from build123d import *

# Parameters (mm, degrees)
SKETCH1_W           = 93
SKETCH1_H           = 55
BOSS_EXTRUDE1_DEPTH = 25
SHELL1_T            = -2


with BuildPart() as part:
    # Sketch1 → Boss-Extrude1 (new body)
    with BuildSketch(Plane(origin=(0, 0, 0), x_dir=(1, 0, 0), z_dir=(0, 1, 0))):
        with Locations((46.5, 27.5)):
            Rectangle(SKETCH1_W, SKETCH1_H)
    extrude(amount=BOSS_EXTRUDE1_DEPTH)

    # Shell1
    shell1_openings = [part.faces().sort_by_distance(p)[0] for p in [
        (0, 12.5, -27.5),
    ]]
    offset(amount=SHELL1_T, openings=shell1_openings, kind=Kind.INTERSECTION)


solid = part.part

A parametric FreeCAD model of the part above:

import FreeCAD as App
import Part
import Sketcher

V = App.Vector


def faces_at(feature, points):
    """Names of the faces that lie closest to the given points."""
    faces = feature.Shape.Faces
    near = lambda p: min(range(len(faces)), key=lambda i: faces[i].distToShape(Part.Vertex(*p))[0])
    return sorted({f"Face{near(p) + 1}" for p in points})


def add_polygon(sketch, points):
    """Adds a closed chain of lines whose ends are joined by coincident constraints."""
    first, n = sketch.GeometryCount, len(points)
    for a, b in zip(points, points[1:] + points[:1]):
        sketch.addGeometry(Part.LineSegment(App.Vector(*a, 0), App.Vector(*b, 0)), False)
    for i in range(n):
        sketch.addConstraint(Sketcher.Constraint("Coincident", first + i, 2, first + (i + 1) % n, 1))

doc = App.newDocument("Part")
body = doc.addObject("PartDesign::Body", "Body")

# Sketch on XZ plane
sketch1 = doc.addObject("Sketcher::SketchObject", "Sketch")
body.addObject(sketch1)
sketch1.AttachmentSupport = (doc.XZ_Plane, [""])
sketch1.MapMode = "FlatFace"
add_polygon(sketch1, [(0, -55), (0, 0), (93, 0), (93, -55)])  # lines 0-3
sketch1.addConstraint([
    Sketcher.Constraint("Vertical", 0),
    Sketcher.Constraint("Horizontal", 1),
    Sketcher.Constraint("Vertical", 2),
    Sketcher.Constraint("Horizontal", 3),
    Sketcher.Constraint("Coincident", 0, 2, -1, 1),
    Sketcher.Constraint("DistanceX", 1, 1, 1, 2, 93.0),
    Sketcher.Constraint("DistanceY", 0, 1, 0, 2, 55.0),
])
pad1 = doc.addObject("PartDesign::Pad", "Pad")
body.addObject(pad1)
pad1.Profile = sketch1
pad1.Length = 25
pad1.Reversed = True
doc.recompute()

thickness = doc.addObject("PartDesign::Thickness", "Thickness")
body.addObject(thickness)
thickness.Base = (pad1, faces_at(pad1, [(0, 12.5, -27.5)]))
thickness.Value = 2
thickness.Reversed = True
thickness.Join = "Intersection"

doc.recompute()
